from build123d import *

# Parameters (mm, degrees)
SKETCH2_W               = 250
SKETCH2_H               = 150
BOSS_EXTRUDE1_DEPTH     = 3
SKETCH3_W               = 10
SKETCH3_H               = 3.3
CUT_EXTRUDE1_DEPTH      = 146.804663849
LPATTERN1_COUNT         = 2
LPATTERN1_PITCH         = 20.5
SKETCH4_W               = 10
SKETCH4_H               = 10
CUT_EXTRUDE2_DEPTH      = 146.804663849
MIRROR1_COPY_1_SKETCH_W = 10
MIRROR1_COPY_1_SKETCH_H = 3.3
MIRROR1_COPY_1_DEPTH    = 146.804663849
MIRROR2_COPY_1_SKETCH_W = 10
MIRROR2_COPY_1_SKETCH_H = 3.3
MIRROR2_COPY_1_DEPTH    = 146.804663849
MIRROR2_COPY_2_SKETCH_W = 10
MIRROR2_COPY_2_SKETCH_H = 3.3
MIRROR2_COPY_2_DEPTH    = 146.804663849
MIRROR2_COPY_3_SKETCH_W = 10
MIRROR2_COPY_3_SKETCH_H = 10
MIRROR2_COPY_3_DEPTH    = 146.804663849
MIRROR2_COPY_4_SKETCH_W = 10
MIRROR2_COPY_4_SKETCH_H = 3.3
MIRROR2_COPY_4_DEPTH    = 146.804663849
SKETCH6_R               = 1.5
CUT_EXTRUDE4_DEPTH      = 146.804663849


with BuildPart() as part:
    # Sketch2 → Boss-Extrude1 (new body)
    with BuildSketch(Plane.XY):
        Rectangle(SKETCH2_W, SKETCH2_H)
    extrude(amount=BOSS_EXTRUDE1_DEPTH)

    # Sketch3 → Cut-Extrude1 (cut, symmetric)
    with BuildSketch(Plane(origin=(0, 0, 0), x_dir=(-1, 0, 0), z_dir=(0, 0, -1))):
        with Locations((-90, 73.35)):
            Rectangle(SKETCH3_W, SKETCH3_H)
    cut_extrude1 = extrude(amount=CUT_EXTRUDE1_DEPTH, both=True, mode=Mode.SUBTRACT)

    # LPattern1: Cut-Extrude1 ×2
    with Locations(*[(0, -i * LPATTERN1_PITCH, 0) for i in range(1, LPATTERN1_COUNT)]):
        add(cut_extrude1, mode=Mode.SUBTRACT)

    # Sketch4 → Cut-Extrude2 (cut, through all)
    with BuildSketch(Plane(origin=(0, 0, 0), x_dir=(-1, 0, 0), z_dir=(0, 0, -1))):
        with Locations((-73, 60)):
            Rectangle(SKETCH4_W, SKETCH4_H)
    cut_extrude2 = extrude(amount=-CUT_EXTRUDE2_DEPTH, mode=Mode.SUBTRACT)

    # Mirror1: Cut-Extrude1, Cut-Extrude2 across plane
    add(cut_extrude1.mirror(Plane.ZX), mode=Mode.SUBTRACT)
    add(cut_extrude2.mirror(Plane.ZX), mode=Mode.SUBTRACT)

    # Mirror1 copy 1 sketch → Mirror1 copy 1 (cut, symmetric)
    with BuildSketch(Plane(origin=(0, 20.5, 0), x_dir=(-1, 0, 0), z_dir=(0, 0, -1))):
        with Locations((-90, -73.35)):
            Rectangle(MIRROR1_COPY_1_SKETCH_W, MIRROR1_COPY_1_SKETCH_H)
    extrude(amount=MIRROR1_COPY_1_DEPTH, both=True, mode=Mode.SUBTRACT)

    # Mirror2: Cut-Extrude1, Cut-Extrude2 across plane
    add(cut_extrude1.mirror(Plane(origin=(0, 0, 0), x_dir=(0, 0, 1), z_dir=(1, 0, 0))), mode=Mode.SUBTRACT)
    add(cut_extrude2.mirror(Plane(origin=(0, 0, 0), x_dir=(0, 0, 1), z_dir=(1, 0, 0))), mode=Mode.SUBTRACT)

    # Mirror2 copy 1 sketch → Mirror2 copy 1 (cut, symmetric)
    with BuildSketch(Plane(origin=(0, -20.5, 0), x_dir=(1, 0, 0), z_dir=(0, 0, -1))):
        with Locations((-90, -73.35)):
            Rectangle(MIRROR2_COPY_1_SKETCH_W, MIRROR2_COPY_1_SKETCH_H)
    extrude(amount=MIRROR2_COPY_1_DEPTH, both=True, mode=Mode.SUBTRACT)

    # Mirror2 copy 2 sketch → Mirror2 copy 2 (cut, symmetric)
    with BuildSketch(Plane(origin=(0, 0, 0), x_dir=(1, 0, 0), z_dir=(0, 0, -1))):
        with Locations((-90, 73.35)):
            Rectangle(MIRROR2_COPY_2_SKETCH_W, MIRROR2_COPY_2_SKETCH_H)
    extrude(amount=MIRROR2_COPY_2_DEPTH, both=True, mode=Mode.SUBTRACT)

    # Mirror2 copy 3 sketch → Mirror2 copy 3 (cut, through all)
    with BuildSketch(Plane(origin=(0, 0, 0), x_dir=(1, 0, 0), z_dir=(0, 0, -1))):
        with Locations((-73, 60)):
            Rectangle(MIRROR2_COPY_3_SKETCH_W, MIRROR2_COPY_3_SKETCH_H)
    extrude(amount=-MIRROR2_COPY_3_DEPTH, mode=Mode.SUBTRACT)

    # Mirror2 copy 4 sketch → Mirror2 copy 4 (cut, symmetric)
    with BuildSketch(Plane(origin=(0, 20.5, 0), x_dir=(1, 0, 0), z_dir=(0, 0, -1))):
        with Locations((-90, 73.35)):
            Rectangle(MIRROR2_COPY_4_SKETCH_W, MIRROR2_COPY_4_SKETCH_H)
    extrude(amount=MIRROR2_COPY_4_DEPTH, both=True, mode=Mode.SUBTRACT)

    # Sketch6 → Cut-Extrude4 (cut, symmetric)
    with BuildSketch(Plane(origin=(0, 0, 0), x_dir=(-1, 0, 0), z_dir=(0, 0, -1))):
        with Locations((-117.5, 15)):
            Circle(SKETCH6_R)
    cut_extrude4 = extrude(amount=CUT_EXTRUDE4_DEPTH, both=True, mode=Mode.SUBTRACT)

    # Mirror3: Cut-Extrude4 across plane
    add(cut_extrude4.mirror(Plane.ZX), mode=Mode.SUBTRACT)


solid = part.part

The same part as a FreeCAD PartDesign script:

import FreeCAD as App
import Part
import Sketcher
from FreeCAD import Vector
Q = App.Units.Quantity

doc = App.newDocument("Part")
params = doc.addObject("Spreadsheet::Sheet", "Params")
for row, (alias, value) in enumerate([
    ("sketch1_width", "250 mm"),
    ("sketch1_height", "150 mm"),
    ("pad1_length", "3 mm"),
    ("sketch2_width", "10 mm"),
    ("sketch2_height", "3.3 mm"),
    ("pocket1_length", "293.609328 mm"),
    ("linearpattern_pitch", "20.5 mm"),
    ("sketch3_width", "10 mm"),
    ("sketch4_width", "10 mm"),
    ("sketch4_height", "3.3 mm"),
    ("pocket3_length", "293.609328 mm"),
    ("sketch5_width", "10 mm"),
    ("sketch5_height", "3.3 mm"),
    ("pocket4_length", "293.609328 mm"),
    ("sketch6_width", "10 mm"),
    ("sketch6_height", "3.3 mm"),
    ("pocket5_length", "293.609328 mm"),
    ("sketch7_width", "10 mm"),
    ("sketch8_width", "10 mm"),
    ("sketch8_height", "3.3 mm"),
    ("pocket7_length", "293.609328 mm"),
    ("sketch9_diameter", "3 mm"),
    ("pocket8_length", "293.609328 mm"),
], start=1):
    params.set(f"A{row}", alias)
    params.set(f"B{row}", "=" + value)
    params.setAlias(f"B{row}", alias)

body = doc.addObject("PartDesign::Body", "Body")

# Sketch on XY plane
sketch1 = doc.addObject("Sketcher::SketchObject", "Sketch")
body.addObject(sketch1)
sketch1.AttachmentSupport = (doc.XY_Plane, [""])
sketch1.MapMode = "FlatFace"
sketch1.addGeometry(Part.LineSegment(Vector(-125, 75, 0), Vector(-125, -75, 0)), False)
sketch1.addGeometry(Part.LineSegment(Vector(-125, -75, 0), Vector(125, -75, 0)), False)
sketch1.addGeometry(Part.LineSegment(Vector(125, -75, 0), Vector(125, 75, 0)), False)
sketch1.addGeometry(Part.LineSegment(Vector(125, 75, 0), Vector(-125, 75, 0)), False)
sketch1.addConstraint(Sketcher.Constraint("Coincident", 0, 2, 1, 1))
sketch1.addConstraint(Sketcher.Constraint("Coincident", 1, 2, 2, 1))
sketch1.addConstraint(Sketcher.Constraint("Coincident", 2, 2, 3, 1))
sketch1.addConstraint(Sketcher.Constraint("Coincident", 3, 2, 0, 1))
sketch1.addConstraint(Sketcher.Constraint("Vertical", 0))
sketch1.addConstraint(Sketcher.Constraint("Horizontal", 1))
sketch1.addConstraint(Sketcher.Constraint("Vertical", 2))
sketch1.addConstraint(Sketcher.Constraint("Horizontal", 3))
sketch1.addConstraint(Sketcher.Constraint("Symmetric", 0, 2, 2, 2, -1, 1))
sketch1.addConstraint(Sketcher.Constraint("DistanceX", 1, 1, 1, 2, Q("250 mm")))
sketch1.addConstraint(Sketcher.Constraint("DistanceY", 0, 2, 0, 1, Q("150 mm")))
sketch1.setExpression("Constraints[9]", "Params.sketch1_width")
sketch1.setExpression("Constraints[10]", "Params.sketch1_height")
pad1 = doc.addObject("PartDesign::Pad", "Pad")
body.addObject(pad1)
pad1.Profile = sketch1
pad1.setExpression("Length", "Params.pad1_length")

# Sketch on XY plane
sketch2 = doc.addObject("Sketcher::SketchObject", "Sketch001")
body.addObject(sketch2)
sketch2.AttachmentSupport = (doc.XY_Plane, [""])
sketch2.MapMode = "FlatFace"
sketch2.addGeometry(Part.LineSegment(Vector(95, 75, 0), Vector(95, 71.7, 0)), False)
sketch2.addGeometry(Part.LineSegment(Vector(95, 71.7, 0), Vector(85, 71.7, 0)), False)
sketch2.addGeometry(Part.LineSegment(Vector(85, 71.7, 0), Vector(85, 75, 0)), False)
sketch2.addGeometry(Part.LineSegment(Vector(85, 75, 0), Vector(95, 75, 0)), False)
sketch2.addConstraint(Sketcher.Constraint("Coincident", 0, 2, 1, 1))
sketch2.addConstraint(Sketcher.Constraint("Coincident", 1, 2, 2, 1))
sketch2.addConstraint(Sketcher.Constraint("Coincident", 2, 2, 3, 1))
sketch2.addConstraint(Sketcher.Constraint("Coincident", 3, 2, 0, 1))
sketch2.addConstraint(Sketcher.Constraint("Vertical", 0))
sketch2.addConstraint(Sketcher.Constraint("Horizontal", 1))
sketch2.addConstraint(Sketcher.Constraint("Vertical", 2))
sketch2.addConstraint(Sketcher.Constraint("Horizontal", 3))
sketch2.addConstraint(Sketcher.Constraint("DistanceX", 1, 2, 1, 1, Q("10 mm")))
sketch2.addConstraint(Sketcher.Constraint("DistanceY", 0, 2, 0, 1, Q("3.3 mm")))
sketch2.addConstraint(Sketcher.Constraint("DistanceX", -1, 1, 0, 2, Q("95 mm")))
sketch2.addConstraint(Sketcher.Constraint("DistanceY", -1, 1, 2, 2, Q("75 mm")))
sketch2.setExpression("Constraints[8]", "Params.sketch2_width")
sketch2.setExpression("Constraints[9]", "Params.sketch2_height")
pocket1 = doc.addObject("PartDesign::Pocket", "Pocket")
body.addObject(pocket1)
pocket1.Profile = sketch2
pocket1.setExpression("Length", "Params.pocket1_length")
pocket1.Midplane = True
doc.recompute()

linearpattern = doc.addObject("PartDesign::LinearPattern", "LinearPattern")
body.addObject(linearpattern)
linearpattern.Originals = [pocket1]
linearpattern.Direction = (doc.Y_Axis, [""])
linearpattern.Mode = "offset"
linearpattern.setExpression("Offset", "Params.linearpattern_pitch")
linearpattern.Occurrences = 2
linearpattern.Reversed = True
body.Tip = linearpattern

# Sketch on XY plane
sketch3 = doc.addObject("Sketcher::SketchObject", "Sketch002")
body.addObject(sketch3)
sketch3.AttachmentSupport = (doc.XY_Plane, [""])
sketch3.MapMode = "FlatFace"
sketch3.addGeometry(Part.LineSegment(Vector(78, 65, 0), Vector(78, 55, 0)), False)
sketch3.addGeometry(Part.LineSegment(Vector(78, 55, 0), Vector(68, 55, 0)), False)
sketch3.addGeometry(Part.LineSegment(Vector(68, 55, 0), Vector(68, 65, 0)), False)
sketch3.addGeometry(Part.LineSegment(Vector(68, 65, 0), Vector(78, 65, 0)), False)
sketch3.addConstraint(Sketcher.Constraint("Coincident", 0, 2, 1, 1))
sketch3.addConstraint(Sketcher.Constraint("Coincident", 1, 2, 2, 1))
sketch3.addConstraint(Sketcher.Constraint("Coincident", 2, 2, 3, 1))
sketch3.addConstraint(Sketcher.Constraint("Coincident", 3, 2, 0, 1))
sketch3.addConstraint(Sketcher.Constraint("Vertical", 0))
sketch3.addConstraint(Sketcher.Constraint("Horizontal", 1))
sketch3.addConstraint(Sketcher.Constraint("Vertical", 2))
sketch3.addConstraint(Sketcher.Constraint("Horizontal", 3))
sketch3.addConstraint(Sketcher.Constraint("Equal", 3, 0))
sketch3.addConstraint(Sketcher.Constraint("DistanceX", 1, 2, 1, 1, Q("10 mm")))
sketch3.addConstraint(Sketcher.Constraint("DistanceX", -1, 1, 0, 2, Q("78 mm")))
sketch3.addConstraint(Sketcher.Constraint("DistanceY", -1, 1, 0, 2, Q("55 mm")))
sketch3.setExpression("Constraints[9]", "Params.sketch3_width")
pocket2 = doc.addObject("PartDesign::Pocket", "Pocket001")
body.addObject(pocket2)
pocket2.Profile = sketch3
pocket2.Type = "ThroughAll"
pocket2.Reversed = True
doc.recompute()

mirrored = doc.addObject("PartDesign::Mirrored", "Mirrored")
body.addObject(mirrored)
mirrored.Originals = [pocket1, pocket2]
mirrored.MirrorPlane = (doc.XZ_Plane, [""])
body.Tip = mirrored

# Sketch on XY plane
sketch4 = doc.addObject("Sketcher::SketchObject", "Sketch003")
body.addObject(sketch4)
sketch4.AttachmentSupport = (doc.XY_Plane, [""])
sketch4.MapMode = "FlatFace"
sketch4.addGeometry(Part.LineSegment(Vector(95, -51.2, 0), Vector(95, -54.5, 0)), False)
sketch4.addGeometry(Part.LineSegment(Vector(95, -54.5, 0), Vector(85, -54.5, 0)), False)
sketch4.addGeometry(Part.LineSegment(Vector(85, -54.5, 0), Vector(85, -51.2, 0)), False)
sketch4.addGeometry(Part.LineSegment(Vector(85, -51.2, 0), Vector(95, -51.2, 0)), False)
sketch4.addConstraint(Sketcher.Constraint("Coincident", 0, 2, 1, 1))
sketch4.addConstraint(Sketcher.Constraint("Coincident", 1, 2, 2, 1))
sketch4.addConstraint(Sketcher.Constraint("Coincident", 2, 2, 3, 1))
sketch4.addConstraint(Sketcher.Constraint("Coincident", 3, 2, 0, 1))
sketch4.addConstraint(Sketcher.Constraint("Vertical", 0))
sketch4.addConstraint(Sketcher.Constraint("Horizontal", 1))
sketch4.addConstraint(Sketcher.Constraint("Vertical", 2))
sketch4.addConstraint(Sketcher.Constraint("Horizontal", 3))
sketch4.addConstraint(Sketcher.Constraint("DistanceX", 1, 2, 1, 1, Q("10 mm")))
sketch4.addConstraint(Sketcher.Constraint("DistanceY", 0, 2, 0, 1, Q("3.3 mm")))
sketch4.addConstraint(Sketcher.Constraint("DistanceX", -1, 1, 0, 2, Q("95 mm")))
sketch4.addConstraint(Sketcher.Constraint("DistanceY", 0, 2, -1, 1, Q("54.5 mm")))
sketch4.setExpression("Constraints[8]", "Params.sketch4_width")
sketch4.setExpression("Constraints[9]", "Params.sketch4_height")
pocket3 = doc.addObject("PartDesign::Pocket", "Pocket002")
body.addObject(pocket3)
pocket3.Profile = sketch4
pocket3.setExpression("Length", "Params.pocket3_length")
pocket3.Midplane = True
doc.recompute()

mirrored2 = doc.addObject("PartDesign::Mirrored", "Mirrored001")
body.addObject(mirrored2)
mirrored2.Originals = [pocket1, pocket2]
mirrored2.MirrorPlane = (doc.YZ_Plane, [""])
body.Tip = mirrored2

# Sketch on XY plane
sketch5 = doc.addObject("Sketcher::SketchObject", "Sketch004")
body.addObject(sketch5)
sketch5.AttachmentSupport = (doc.XY_Plane, [""])
sketch5.MapMode = "FlatFace"
sketch5.addGeometry(Part.LineSegment(Vector(-95, 51.2, 0), Vector(-95, 54.5, 0)), False)
sketch5.addGeometry(Part.LineSegment(Vector(-95, 54.5, 0), Vector(-85, 54.5, 0)), False)
sketch5.addGeometry(Part.LineSegment(Vector(-85, 54.5, 0), Vector(-85, 51.2, 0)), False)
sketch5.addGeometry(Part.LineSegment(Vector(-85, 51.2, 0), Vector(-95, 51.2, 0)), False)
sketch5.addConstraint(Sketcher.Constraint("Coincident", 0, 2, 1, 1))
sketch5.addConstraint(Sketcher.Constraint("Coincident", 1, 2, 2, 1))
sketch5.addConstraint(Sketcher.Constraint("Coincident", 2, 2, 3, 1))
sketch5.addConstraint(Sketcher.Constraint("Coincident", 3, 2, 0, 1))
sketch5.addConstraint(Sketcher.Constraint("Vertical", 0))
sketch5.addConstraint(Sketcher.Constraint("Horizontal", 1))
sketch5.addConstraint(Sketcher.Constraint("Vertical", 2))
sketch5.addConstraint(Sketcher.Constraint("Horizontal", 3))
sketch5.addConstraint(Sketcher.Constraint("DistanceX", 1, 1, 1, 2, Q("10 mm")))
sketch5.addConstraint(Sketcher.Constraint("DistanceY", 0, 1, 0, 2, Q("3.3 mm")))
sketch5.addConstraint(Sketcher.Constraint("DistanceX", 0, 2, -1, 1, Q("95 mm")))
sketch5.addConstraint(Sketcher.Constraint("DistanceY", -1, 1, 0, 2, Q("54.5 mm")))
sketch5.setExpression("Constraints[8]", "Params.sketch5_width")
sketch5.setExpression("Constraints[9]", "Params.sketch5_height")
pocket4 = doc.addObject("PartDesign::Pocket", "Pocket003")
body.addObject(pocket4)
pocket4.Profile = sketch5
pocket4.setExpression("Length", "Params.pocket4_length")
pocket4.Midplane = True

# Sketch on XY plane
sketch6 = doc.addObject("Sketcher::SketchObject", "Sketch005")
body.addObject(sketch6)
sketch6.AttachmentSupport = (doc.XY_Plane, [""])
sketch6.MapMode = "FlatFace"
sketch6.addGeometry(Part.LineSegment(Vector(-95, -75, 0), Vector(-95, -71.7, 0)), False)
sketch6.addGeometry(Part.LineSegment(Vector(-95, -71.7, 0), Vector(-85, -71.7, 0)), False)
sketch6.addGeometry(Part.LineSegment(Vector(-85, -71.7, 0), Vector(-85, -75, 0)), False)
sketch6.addGeometry(Part.LineSegment(Vector(-85, -75, 0), Vector(-95, -75, 0)), False)
sketch6.addConstraint(Sketcher.Constraint("Coincident", 0, 2, 1, 1))
sketch6.addConstraint(Sketcher.Constraint("Coincident", 1, 2, 2, 1))
sketch6.addConstraint(Sketcher.Constraint("Coincident", 2, 2, 3, 1))
sketch6.addConstraint(Sketcher.Constraint("Coincident", 3, 2, 0, 1))
sketch6.addConstraint(Sketcher.Constraint("Vertical", 0))
sketch6.addConstraint(Sketcher.Constraint("Horizontal", 1))
sketch6.addConstraint(Sketcher.Constraint("Vertical", 2))
sketch6.addConstraint(Sketcher.Constraint("Horizontal", 3))
sketch6.addConstraint(Sketcher.Constraint("DistanceX", 1, 1, 1, 2, Q("10 mm")))
sketch6.addConstraint(Sketcher.Constraint("DistanceY", 0, 1, 0, 2, Q("3.3 mm")))
sketch6.addConstraint(Sketcher.Constraint("DistanceX", 0, 2, -1, 1, Q("95 mm")))
sketch6.addConstraint(Sketcher.Constraint("DistanceY", 2, 2, -1, 1, Q("75 mm")))
sketch6.setExpression("Constraints[8]", "Params.sketch6_width")
sketch6.setExpression("Constraints[9]", "Params.sketch6_height")
pocket5 = doc.addObject("PartDesign::Pocket", "Pocket004")
body.addObject(pocket5)
pocket5.Profile = sketch6
pocket5.setExpression("Length", "Params.pocket5_length")
pocket5.Midplane = True

# Sketch on XY plane
sketch7 = doc.addObject("Sketcher::SketchObject", "Sketch006")
body.addObject(sketch7)
sketch7.AttachmentSupport = (doc.XY_Plane, [""])
sketch7.MapMode = "FlatFace"
sketch7.addGeometry(Part.LineSegment(Vector(-78, -65, 0), Vector(-78, -55, 0)), False)
sketch7.addGeometry(Part.LineSegment(Vector(-78, -55, 0), Vector(-68, -55, 0)), False)
sketch7.addGeometry(Part.LineSegment(Vector(-68, -55, 0), Vector(-68, -65, 0)), False)
sketch7.addGeometry(Part.LineSegment(Vector(-68, -65, 0), Vector(-78, -65, 0)), False)
sketch7.addConstraint(Sketcher.Constraint("Coincident", 0, 2, 1, 1))
sketch7.addConstraint(Sketcher.Constraint("Coincident", 1, 2, 2, 1))
sketch7.addConstraint(Sketcher.Constraint("Coincident", 2, 2, 3, 1))
sketch7.addConstraint(Sketcher.Constraint("Coincident", 3, 2, 0, 1))
sketch7.addConstraint(Sketcher.Constraint("Vertical", 0))
sketch7.addConstraint(Sketcher.Constraint("Horizontal", 1))
sketch7.addConstraint(Sketcher.Constraint("Vertical", 2))
sketch7.addConstraint(Sketcher.Constraint("Horizontal", 3))
sketch7.addConstraint(Sketcher.Constraint("Equal", 3, 0))
sketch7.addConstraint(Sketcher.Constraint("DistanceX", 1, 1, 1, 2, Q("10 mm")))
sketch7.addConstraint(Sketcher.Constraint("DistanceX", 0, 2, -1, 1, Q("78 mm")))
sketch7.addConstraint(Sketcher.Constraint("DistanceY", 0, 2, -1, 1, Q("55 mm")))
sketch7.setExpression("Constraints[9]", "Params.sketch7_width")
pocket6 = doc.addObject("PartDesign::Pocket", "Pocket005")
body.addObject(pocket6)
pocket6.Profile = sketch7
pocket6.Type = "ThroughAll"
pocket6.Reversed = True

# Sketch on XY plane
sketch8 = doc.addObject("Sketcher::SketchObject", "Sketch007")
body.addObject(sketch8)
sketch8.AttachmentSupport = (doc.XY_Plane, [""])
sketch8.MapMode = "FlatFace"
sketch8.addGeometry(Part.LineSegment(Vector(-95, -54.5, 0), Vector(-95, -51.2, 0)), False)
sketch8.addGeometry(Part.LineSegment(Vector(-95, -51.2, 0), Vector(-85, -51.2, 0)), False)
sketch8.addGeometry(Part.LineSegment(Vector(-85, -51.2, 0), Vector(-85, -54.5, 0)), False)
sketch8.addGeometry(Part.LineSegment(Vector(-85, -54.5, 0), Vector(-95, -54.5, 0)), False)
sketch8.addConstraint(Sketcher.Constraint("Coincident", 0, 2, 1, 1))
sketch8.addConstraint(Sketcher.Constraint("Coincident", 1, 2, 2, 1))
sketch8.addConstraint(Sketcher.Constraint("Coincident", 2, 2, 3, 1))
sketch8.addConstraint(Sketcher.Constraint("Coincident", 3, 2, 0, 1))
sketch8.addConstraint(Sketcher.Constraint("Vertical", 0))
sketch8.addConstraint(Sketcher.Constraint("Horizontal", 1))
sketch8.addConstraint(Sketcher.Constraint("Vertical", 2))
sketch8.addConstraint(Sketcher.Constraint("Horizontal", 3))
sketch8.addConstraint(Sketcher.Constraint("DistanceX", 1, 1, 1, 2, Q("10 mm")))
sketch8.addConstraint(Sketcher.Constraint("DistanceY", 0, 1, 0, 2, Q("3.3 mm")))
sketch8.addConstraint(Sketcher.Constraint("DistanceX", 0, 2, -1, 1, Q("95 mm")))
sketch8.addConstraint(Sketcher.Constraint("DistanceY", 0, 2, -1, 1, Q("51.2 mm")))
sketch8.setExpression("Constraints[8]", "Params.sketch8_width")
sketch8.setExpression("Constraints[9]", "Params.sketch8_height")
pocket7 = doc.addObject("PartDesign::Pocket", "Pocket006")
body.addObject(pocket7)
pocket7.Profile = sketch8
pocket7.setExpression("Length", "Params.pocket7_length")
pocket7.Midplane = True

# Sketch on XY plane
sketch9 = doc.addObject("Sketcher::SketchObject", "Sketch008")
body.addObject(sketch9)
sketch9.AttachmentSupport = (doc.XY_Plane, [""])
sketch9.MapMode = "FlatFace"
sketch9.addGeometry(Part.Circle(Vector(117.5, 15, 0), Vector(0, 0, 1), 1.5), False)
sketch9.addConstraint(Sketcher.Constraint("Diameter", 0, Q("3 mm")))
sketch9.addConstraint(Sketcher.Constraint("DistanceY", -1, 1, 0, 3, Q("15 mm")))
sketch9.addConstraint(Sketcher.Constraint("DistanceX", -1, 1, 0, 3, Q("117.5 mm")))
sketch9.setExpression("Constraints[0]", "Params.sketch9_diameter")
pocket8 = doc.addObject("PartDesign::Pocket", "Pocket007")
body.addObject(pocket8)
pocket8.Profile = sketch9
pocket8.setExpression("Length", "Params.pocket8_length")
pocket8.Midplane = True
doc.recompute()

mirrored3 = doc.addObject("PartDesign::Mirrored", "Mirrored002")
body.addObject(mirrored3)
mirrored3.Originals = [pocket8]
mirrored3.MirrorPlane = (doc.XZ_Plane, [""])
body.Tip = mirrored3

doc.recompute()
